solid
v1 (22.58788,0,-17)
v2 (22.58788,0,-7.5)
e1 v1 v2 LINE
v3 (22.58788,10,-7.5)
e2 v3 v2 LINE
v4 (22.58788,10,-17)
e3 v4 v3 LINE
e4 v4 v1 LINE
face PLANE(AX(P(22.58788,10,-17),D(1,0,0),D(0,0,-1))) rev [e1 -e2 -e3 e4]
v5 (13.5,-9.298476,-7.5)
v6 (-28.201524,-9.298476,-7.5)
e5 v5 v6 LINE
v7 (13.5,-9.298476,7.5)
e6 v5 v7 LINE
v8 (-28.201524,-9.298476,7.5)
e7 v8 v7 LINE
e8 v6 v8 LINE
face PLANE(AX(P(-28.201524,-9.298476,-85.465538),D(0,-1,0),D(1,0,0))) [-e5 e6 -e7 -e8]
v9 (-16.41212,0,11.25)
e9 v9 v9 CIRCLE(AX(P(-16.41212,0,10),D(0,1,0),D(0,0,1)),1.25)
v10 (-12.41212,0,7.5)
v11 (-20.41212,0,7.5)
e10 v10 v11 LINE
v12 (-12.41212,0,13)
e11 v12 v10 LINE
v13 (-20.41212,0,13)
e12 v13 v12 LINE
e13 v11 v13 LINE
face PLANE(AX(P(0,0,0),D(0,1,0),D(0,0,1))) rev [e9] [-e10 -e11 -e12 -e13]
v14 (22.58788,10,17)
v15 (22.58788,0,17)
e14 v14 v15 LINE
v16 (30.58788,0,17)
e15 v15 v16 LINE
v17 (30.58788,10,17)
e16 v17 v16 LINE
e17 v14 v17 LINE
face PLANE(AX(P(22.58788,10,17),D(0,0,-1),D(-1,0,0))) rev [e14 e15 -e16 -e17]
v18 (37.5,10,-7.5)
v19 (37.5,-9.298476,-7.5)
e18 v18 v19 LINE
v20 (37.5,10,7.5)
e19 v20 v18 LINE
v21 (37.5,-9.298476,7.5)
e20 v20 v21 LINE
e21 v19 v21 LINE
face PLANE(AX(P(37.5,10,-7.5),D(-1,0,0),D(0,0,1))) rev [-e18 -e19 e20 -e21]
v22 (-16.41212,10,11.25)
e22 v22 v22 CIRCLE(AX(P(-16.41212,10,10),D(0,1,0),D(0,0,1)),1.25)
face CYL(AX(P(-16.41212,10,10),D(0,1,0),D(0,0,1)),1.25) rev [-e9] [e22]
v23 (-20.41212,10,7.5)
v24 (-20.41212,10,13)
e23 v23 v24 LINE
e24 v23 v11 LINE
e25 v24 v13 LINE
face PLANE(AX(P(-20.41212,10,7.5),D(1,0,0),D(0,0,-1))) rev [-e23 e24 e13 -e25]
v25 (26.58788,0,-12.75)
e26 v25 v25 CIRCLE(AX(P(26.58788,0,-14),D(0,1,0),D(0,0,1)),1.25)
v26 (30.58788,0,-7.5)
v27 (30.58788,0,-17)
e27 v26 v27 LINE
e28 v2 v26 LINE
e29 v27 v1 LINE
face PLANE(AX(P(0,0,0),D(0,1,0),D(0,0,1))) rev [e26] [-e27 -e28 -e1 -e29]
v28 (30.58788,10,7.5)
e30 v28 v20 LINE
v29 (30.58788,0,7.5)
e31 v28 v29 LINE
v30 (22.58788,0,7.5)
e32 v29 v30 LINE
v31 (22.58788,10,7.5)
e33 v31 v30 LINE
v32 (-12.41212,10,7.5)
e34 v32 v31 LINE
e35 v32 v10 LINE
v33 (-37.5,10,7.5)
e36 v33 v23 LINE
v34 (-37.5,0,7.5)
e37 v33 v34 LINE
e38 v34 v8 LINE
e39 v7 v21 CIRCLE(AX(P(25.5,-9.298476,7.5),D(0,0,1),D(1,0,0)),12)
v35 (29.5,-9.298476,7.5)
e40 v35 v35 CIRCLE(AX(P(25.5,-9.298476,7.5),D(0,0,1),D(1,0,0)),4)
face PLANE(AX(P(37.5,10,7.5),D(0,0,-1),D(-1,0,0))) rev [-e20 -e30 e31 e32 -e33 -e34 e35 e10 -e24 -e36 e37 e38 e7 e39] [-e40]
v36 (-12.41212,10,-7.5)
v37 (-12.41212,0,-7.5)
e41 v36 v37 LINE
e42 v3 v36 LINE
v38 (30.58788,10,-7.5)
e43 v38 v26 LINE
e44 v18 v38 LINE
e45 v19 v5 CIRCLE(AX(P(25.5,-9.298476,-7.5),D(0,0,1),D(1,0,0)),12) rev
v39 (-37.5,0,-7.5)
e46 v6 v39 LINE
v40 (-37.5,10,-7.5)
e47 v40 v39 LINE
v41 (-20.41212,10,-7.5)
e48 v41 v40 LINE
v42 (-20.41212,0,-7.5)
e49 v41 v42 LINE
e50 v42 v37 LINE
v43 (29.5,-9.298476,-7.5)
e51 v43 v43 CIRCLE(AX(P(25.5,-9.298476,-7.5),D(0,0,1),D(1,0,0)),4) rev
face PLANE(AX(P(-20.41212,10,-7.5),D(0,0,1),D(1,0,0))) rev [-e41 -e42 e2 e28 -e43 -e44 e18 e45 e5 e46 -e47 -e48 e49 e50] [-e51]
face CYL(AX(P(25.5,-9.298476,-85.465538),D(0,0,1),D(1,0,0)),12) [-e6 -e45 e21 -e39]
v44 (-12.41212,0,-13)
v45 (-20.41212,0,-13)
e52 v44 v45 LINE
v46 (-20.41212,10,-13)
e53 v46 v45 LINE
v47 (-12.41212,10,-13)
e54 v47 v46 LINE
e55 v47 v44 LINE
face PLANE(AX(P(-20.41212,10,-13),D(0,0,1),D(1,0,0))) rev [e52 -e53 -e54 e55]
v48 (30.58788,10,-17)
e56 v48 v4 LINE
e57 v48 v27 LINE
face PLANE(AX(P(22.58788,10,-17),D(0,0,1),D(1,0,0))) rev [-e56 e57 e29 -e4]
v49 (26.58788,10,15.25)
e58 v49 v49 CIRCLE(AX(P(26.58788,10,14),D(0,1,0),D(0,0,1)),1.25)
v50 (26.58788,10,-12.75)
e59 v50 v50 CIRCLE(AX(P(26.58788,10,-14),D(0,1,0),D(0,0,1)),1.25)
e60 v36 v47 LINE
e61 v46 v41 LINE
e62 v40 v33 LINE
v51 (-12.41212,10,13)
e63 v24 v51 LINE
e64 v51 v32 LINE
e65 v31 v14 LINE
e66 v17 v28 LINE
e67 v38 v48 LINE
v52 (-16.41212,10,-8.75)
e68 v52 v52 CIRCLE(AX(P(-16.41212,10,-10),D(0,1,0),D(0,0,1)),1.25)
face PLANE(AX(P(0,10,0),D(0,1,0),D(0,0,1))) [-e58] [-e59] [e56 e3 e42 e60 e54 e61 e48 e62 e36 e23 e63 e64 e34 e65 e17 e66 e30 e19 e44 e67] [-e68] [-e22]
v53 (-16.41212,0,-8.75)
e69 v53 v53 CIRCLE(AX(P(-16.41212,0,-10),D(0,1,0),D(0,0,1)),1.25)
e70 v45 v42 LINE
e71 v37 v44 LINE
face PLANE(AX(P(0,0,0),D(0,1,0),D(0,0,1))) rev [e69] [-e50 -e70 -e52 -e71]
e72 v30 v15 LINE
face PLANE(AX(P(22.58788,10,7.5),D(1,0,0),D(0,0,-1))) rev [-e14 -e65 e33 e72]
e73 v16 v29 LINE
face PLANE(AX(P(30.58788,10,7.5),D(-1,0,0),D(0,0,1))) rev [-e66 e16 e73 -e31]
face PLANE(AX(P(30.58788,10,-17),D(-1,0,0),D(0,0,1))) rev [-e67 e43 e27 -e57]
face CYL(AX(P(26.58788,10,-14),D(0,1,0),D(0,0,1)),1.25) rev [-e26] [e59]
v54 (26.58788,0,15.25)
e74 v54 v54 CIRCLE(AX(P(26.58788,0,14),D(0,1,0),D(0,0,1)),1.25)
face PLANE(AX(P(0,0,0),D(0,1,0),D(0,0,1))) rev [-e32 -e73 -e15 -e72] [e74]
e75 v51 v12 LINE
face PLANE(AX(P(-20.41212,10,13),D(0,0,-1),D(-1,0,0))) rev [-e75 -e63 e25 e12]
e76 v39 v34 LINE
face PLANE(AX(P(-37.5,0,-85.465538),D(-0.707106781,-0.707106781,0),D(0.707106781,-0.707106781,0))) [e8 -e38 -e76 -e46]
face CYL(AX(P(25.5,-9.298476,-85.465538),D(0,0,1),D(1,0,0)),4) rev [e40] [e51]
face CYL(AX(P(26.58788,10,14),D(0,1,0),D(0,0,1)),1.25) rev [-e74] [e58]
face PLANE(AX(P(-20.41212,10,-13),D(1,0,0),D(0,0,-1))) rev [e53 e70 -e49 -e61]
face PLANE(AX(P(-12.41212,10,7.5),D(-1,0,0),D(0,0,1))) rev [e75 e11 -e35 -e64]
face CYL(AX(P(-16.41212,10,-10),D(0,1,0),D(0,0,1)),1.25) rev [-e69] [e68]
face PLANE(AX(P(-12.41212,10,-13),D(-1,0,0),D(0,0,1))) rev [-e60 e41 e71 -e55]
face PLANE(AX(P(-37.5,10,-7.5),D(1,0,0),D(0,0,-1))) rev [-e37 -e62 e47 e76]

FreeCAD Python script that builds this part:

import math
import FreeCAD as App
import Part
import Sketcher

V = App.Vector
Q = App.Units.Quantity


def add_polygon(sketch, points):
    """Adds a closed chain of lines whose ends are joined by coincident constraints."""
    first, n = sketch.GeometryCount, len(points)
    for a, b in zip(points, points[1:] + points[:1]):
        sketch.addGeometry(Part.LineSegment(App.Vector(*a, 0), App.Vector(*b, 0)), False)
    for i in range(n):
        sketch.addConstraint(Sketcher.Constraint("Coincident", first + i, 2, first + (i + 1) % n, 1))

doc = App.newDocument("Part")
body = doc.addObject("PartDesign::Body", "Body")

sketch1 = body.newObject("Sketcher::SketchObject", "Sketch")
sketch1.AttachmentSupport = (doc.getObject("XZ_Plane"), [""])
sketch1.MapMode = "FlatFace"
add_polygon(sketch1, [(38, -8), (31, -8), (31, -17), (23, -17), (23, -8), (-12, -8), (-12, -13), (-20, -13), (-20, -8), (-38, -8), (-38, 8), (-20, 8), (-20, 13), (-12, 13), (-12, 8), (23, 8), (23, 17), (31, 17), (31, 8), (38, 8)])
sketch1.addConstraint([
    Sketcher.Constraint("Horizontal", 0),
    Sketcher.Constraint("Vertical", 1),
    Sketcher.Constraint("Horizontal", 2),
    Sketcher.Constraint("Vertical", 3),
    Sketcher.Constraint("Horizontal", 4),
    Sketcher.Constraint("Vertical", 5),
    Sketcher.Constraint("Horizontal", 6),
    Sketcher.Constraint("Vertical", 7),
    Sketcher.Constraint("Horizontal", 8),
    Sketcher.Constraint("Vertical", 9),
    Sketcher.Constraint("Horizontal", 10),
    Sketcher.Constraint("Vertical", 11),
    Sketcher.Constraint("Horizontal", 12),
    Sketcher.Constraint("Vertical", 13),
    Sketcher.Constraint("Horizontal", 14),
    Sketcher.Constraint("Vertical", 15),
    Sketcher.Constraint("Horizontal", 16),
    Sketcher.Constraint("Vertical", 17),
    Sketcher.Constraint("Horizontal", 18),
    Sketcher.Constraint("Vertical", 19),
    Sketcher.Constraint("Symmetric", 8, 2, 18, 2, -1, 1),
    Sketcher.Constraint("Symmetric", 7, 2, 10, 2, -1),
    Sketcher.Constraint("Symmetric", 5, 2, 12, 2, -1),
    Sketcher.Constraint("Symmetric", 3, 2, 14, 2, -1),
    Sketcher.Constraint("Symmetric", 1, 2, 16, 2, -1),
    Sketcher.Constraint("Horizontal", 0, 2, 3, 2),
    Sketcher.Constraint("Horizontal", 4, 2, 7, 2),
    Sketcher.Constraint("Equal", 2, 6),
    Sketcher.Constraint("DistanceX", 2, 2, 2, 1, Q("8 mm")),
    Sketcher.Constraint("DistanceX", 4, 2, 4, 1, Q("35 mm")),
    Sketcher.Constraint("DistanceY", 9, 1, 9, 2, Q("15 mm")),
    Sketcher.Constraint("DistanceY", 1, 2, 1, 1, Q("9.5 mm")),
    Sketcher.Constraint("DistanceY", 5, 2, 5, 1, Q("5.5 mm")),
    Sketcher.Constraint("DistanceX", 8, 2, -1, 1, Q("37.5 mm")),
    Sketcher.Constraint("DistanceX", 0, 2, 0, 1, Q("6.91212 mm")),
])
pad1 = body.newObject("PartDesign::Pad", "Pad")
pad1.Profile = sketch1
pad1.Length = 10
pad1.Reversed = True

sketch2 = body.newObject("Sketcher::SketchObject", "Sketch001")
sketch2.AttachmentSupport = (doc.getObject("XZ_Plane"), [""])
sketch2.MapMode = "FlatFace"
sketch2.AttachmentOffset = App.Placement(V(0, 0, -10), App.Rotation())
sketch2.addGeometry([
    Part.Circle(V(-16.4, -10, 0), V(0, 0, 1), 1.2),
    Part.Circle(V(-16.4, 10, 0), V(0, 0, 1), 1.2),
    Part.Circle(V(26.6, -14, 0), V(0, 0, 1), 1.2),
    Part.Circle(V(26.6, 14, 0), V(0, 0, 1), 1.2),
], False)
sketch2.addConstraint([
    Sketcher.Constraint("Equal", 0, 1),
    Sketcher.Constraint("Equal", 1, 2),
    Sketcher.Constraint("Equal", 2, 3),
    Sketcher.Constraint("Symmetric", 0, 3, 1, 3, -1),
    Sketcher.Constraint("Symmetric", 2, 3, 3, 3, -1),
    Sketcher.Constraint("Diameter", 0, Q("2.5 mm")),
    Sketcher.Constraint("DistanceY", 0, 3, -1, 1, Q("10 mm")),
    Sketcher.Constraint("DistanceY", 2, 3, -1, 1, Q("14 mm")),
    Sketcher.Constraint("DistanceX", 0, 3, 2, 3, Q("43 mm")),
    Sketcher.Constraint("DistanceX", 0, 3, -1, 1, Q("16.41212 mm")),
])
doc.recompute()
hole = body.newObject("PartDesign::Hole", "Hole")
hole.Profile = sketch2
hole.ThreadType = "None"
hole.Diameter = 2.5
hole.DepthType = "ThroughAll"
hole.Reversed = True

sketch3 = body.newObject("Sketcher::SketchObject", "Sketch002")
sketch3.AttachmentSupport = (doc.getObject("XY_Plane"), [""])
sketch3.MapMode = "FlatFace"
sketch3.AttachmentOffset = App.Placement(V(0, 0, 7.5), App.Rotation())
sketch3.addGeometry([
    Part.LineSegment(V(37.5, 0, 0), V(-37.5, 0, 0)),
    Part.LineSegment(V(-37.5, 0, 0), V(-28.2, -9.3, 0)),
    Part.LineSegment(V(-28.2, -9.3, 0), V(13.5, -9.3, 0)),
    Part.ArcOfCircle(Part.Circle(V(25.5, -9.3, 0), V(0, 0, 1), 12), math.radians(180), math.radians(360)),
    Part.LineSegment(V(37.5, -9.3, 0), V(37.5, 0, 0)),
    Part.Circle(V(25.5, -9.3, 0), V(0, 0, 1), 4),
], False)
sketch3.addConstraint([
    Sketcher.Constraint("Coincident", 0, 2, 1, 1),
    Sketcher.Constraint("Coincident", 1, 2, 2, 1),
    Sketcher.Constraint("Coincident", 2, 2, 3, 1),
    Sketcher.Constraint("Tangent", 3, 2, 4, 1),
    Sketcher.Constraint("Coincident", 4, 2, 0, 1),
    Sketcher.Constraint("Horizontal", 0),
    Sketcher.Constraint("Horizontal", 2),
    Sketcher.Constraint("Vertical", 4),
    Sketcher.Constraint("Coincident", 5, 3, 3, 3),
    Sketcher.Constraint("Symmetric", 0, 2, 4, 2, -1, 1),
    Sketcher.Constraint("Horizontal", 5, 3, 1, 2),
    Sketcher.Constraint("Diameter", 5, Q("8 mm")),
    Sketcher.Constraint("Radius", 3, Q("12 mm")),
    Sketcher.Constraint("DistanceX", 0, 2, 0, 1, Q("75 mm")),
    Sketcher.Constraint("Angle", 1, Q("-45 deg")),
    Sketcher.Constraint("Distance", 1, Q("13.150031 mm")),
])
pad2 = body.newObject("PartDesign::Pad", "Pad001")
pad2.Profile = sketch3
pad2.Length = 15
pad2.Reversed = True

doc.recompute()
